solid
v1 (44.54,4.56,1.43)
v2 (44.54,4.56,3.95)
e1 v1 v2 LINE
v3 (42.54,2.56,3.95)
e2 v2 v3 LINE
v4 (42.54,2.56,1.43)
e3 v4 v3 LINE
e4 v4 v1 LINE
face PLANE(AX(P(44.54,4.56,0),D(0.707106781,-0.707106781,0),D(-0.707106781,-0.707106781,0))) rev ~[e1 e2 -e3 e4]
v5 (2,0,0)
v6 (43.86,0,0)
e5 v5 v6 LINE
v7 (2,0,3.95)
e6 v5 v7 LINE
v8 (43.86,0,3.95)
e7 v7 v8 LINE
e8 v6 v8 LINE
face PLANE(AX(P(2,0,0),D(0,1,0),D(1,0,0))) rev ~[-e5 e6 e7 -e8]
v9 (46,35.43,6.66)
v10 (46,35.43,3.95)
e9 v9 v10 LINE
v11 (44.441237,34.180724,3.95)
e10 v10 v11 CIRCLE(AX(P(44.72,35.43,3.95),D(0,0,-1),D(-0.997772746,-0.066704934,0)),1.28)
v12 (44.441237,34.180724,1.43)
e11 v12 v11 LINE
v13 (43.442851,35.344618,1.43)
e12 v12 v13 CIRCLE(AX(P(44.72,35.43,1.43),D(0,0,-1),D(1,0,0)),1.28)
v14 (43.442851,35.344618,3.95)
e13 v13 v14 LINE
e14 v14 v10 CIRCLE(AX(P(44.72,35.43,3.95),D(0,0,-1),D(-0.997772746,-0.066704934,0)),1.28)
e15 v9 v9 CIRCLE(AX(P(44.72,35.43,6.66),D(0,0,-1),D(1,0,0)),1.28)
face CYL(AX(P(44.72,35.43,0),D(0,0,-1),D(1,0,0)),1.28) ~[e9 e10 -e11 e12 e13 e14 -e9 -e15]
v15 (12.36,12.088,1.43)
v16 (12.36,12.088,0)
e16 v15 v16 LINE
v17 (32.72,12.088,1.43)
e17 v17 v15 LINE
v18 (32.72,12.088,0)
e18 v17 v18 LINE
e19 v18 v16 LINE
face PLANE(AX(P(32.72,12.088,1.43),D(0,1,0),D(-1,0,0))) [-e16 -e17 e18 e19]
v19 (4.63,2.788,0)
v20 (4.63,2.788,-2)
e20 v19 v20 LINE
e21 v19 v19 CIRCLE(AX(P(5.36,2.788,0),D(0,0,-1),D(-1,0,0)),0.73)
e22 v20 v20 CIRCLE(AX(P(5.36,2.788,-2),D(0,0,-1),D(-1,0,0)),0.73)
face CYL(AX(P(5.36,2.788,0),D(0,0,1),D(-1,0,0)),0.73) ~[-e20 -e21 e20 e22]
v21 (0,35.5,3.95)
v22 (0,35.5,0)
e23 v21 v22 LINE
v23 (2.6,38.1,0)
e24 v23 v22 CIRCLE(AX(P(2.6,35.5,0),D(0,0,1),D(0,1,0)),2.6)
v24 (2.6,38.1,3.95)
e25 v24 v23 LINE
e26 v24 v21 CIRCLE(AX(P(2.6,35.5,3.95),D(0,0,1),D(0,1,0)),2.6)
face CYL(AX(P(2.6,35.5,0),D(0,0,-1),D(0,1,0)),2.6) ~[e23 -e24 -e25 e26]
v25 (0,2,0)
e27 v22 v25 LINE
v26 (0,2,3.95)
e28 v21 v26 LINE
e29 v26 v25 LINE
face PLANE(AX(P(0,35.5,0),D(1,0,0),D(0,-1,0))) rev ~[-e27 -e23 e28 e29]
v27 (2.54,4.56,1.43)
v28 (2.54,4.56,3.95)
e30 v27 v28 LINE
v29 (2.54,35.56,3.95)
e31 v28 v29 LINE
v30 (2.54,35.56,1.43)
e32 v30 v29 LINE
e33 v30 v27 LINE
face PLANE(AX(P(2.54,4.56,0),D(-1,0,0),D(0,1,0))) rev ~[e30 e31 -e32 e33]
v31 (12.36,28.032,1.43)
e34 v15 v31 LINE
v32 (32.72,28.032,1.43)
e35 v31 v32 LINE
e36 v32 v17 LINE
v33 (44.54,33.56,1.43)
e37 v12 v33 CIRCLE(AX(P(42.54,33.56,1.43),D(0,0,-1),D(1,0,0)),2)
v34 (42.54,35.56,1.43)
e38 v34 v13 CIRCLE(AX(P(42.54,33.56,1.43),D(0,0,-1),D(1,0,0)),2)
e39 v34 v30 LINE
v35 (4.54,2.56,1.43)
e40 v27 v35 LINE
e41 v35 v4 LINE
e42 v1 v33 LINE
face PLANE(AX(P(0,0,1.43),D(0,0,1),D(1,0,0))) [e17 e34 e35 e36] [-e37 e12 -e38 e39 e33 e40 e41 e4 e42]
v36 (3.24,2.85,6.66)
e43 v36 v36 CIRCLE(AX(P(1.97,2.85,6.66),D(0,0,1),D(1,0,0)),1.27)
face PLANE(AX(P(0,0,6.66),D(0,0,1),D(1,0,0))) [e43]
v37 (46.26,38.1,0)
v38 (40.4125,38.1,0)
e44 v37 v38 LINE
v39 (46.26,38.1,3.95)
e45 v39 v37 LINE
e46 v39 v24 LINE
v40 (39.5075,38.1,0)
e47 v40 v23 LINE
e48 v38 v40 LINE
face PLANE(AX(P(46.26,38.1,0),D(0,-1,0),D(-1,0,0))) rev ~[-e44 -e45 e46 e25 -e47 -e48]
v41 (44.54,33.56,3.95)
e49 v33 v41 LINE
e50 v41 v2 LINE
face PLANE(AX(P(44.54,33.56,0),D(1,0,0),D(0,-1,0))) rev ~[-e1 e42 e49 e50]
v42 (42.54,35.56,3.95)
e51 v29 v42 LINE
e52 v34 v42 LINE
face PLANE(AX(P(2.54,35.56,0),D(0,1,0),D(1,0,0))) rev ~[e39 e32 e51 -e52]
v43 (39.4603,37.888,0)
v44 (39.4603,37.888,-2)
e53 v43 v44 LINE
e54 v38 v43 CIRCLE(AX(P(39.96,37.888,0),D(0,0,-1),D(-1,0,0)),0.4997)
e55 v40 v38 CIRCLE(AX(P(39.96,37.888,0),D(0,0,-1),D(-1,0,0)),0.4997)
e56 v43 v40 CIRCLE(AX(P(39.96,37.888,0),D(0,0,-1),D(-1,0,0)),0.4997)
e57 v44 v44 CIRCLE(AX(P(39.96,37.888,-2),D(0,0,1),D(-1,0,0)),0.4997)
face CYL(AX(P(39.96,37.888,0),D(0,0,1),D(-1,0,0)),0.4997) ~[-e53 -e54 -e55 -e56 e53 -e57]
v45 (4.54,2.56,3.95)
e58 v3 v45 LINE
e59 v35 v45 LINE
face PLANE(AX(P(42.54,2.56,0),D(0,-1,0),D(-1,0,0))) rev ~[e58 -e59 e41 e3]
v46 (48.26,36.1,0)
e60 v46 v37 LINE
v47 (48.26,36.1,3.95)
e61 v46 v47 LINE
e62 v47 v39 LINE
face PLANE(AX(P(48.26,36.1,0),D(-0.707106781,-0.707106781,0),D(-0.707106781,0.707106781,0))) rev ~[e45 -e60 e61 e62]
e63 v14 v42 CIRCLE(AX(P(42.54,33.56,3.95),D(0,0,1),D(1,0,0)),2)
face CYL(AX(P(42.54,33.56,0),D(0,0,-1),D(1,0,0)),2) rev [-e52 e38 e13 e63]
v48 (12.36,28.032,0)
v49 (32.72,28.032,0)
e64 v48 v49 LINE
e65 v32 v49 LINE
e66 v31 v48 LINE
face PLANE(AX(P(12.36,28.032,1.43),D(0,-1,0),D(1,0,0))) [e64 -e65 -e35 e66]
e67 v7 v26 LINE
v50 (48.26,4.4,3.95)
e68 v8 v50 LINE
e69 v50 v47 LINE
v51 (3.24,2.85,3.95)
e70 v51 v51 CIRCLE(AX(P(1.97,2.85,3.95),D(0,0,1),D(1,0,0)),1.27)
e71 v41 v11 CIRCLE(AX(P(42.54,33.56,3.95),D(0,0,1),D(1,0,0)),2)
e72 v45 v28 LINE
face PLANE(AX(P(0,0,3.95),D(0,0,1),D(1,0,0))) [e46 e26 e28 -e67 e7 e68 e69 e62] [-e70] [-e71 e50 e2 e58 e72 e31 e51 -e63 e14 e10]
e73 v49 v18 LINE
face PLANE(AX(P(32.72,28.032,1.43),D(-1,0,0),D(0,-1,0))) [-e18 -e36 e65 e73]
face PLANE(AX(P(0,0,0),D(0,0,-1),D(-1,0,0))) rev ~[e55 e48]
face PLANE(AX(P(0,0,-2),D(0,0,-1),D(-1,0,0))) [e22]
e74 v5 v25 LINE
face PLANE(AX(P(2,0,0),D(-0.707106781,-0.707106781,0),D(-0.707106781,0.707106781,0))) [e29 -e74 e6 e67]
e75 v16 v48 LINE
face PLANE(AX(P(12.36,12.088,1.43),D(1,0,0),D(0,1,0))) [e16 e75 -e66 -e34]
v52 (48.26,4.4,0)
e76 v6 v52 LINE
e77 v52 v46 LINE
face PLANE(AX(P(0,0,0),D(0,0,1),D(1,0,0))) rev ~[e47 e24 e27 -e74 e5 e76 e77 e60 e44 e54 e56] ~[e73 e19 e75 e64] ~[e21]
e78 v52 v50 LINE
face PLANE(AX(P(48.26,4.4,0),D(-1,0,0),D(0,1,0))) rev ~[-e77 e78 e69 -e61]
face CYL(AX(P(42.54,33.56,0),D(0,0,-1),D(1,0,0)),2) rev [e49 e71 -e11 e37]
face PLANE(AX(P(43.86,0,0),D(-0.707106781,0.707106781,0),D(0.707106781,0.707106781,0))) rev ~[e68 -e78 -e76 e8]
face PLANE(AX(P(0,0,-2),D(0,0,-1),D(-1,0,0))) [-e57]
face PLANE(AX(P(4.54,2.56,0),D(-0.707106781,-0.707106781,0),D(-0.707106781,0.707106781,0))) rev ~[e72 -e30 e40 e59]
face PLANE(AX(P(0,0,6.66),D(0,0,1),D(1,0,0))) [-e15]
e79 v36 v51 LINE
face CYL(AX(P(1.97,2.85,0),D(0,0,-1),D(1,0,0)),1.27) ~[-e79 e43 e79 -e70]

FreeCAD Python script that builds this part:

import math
import FreeCAD as App
import Part
import Sketcher

V = App.Vector

doc = App.newDocument("Part")
body = doc.addObject("PartDesign::Body", "Body")

# Sketch on XY plane
sketch1 = body.newObject("Sketcher::SketchObject", "Sketch")
sketch1.AttachmentSupport = (doc.getObject("XY_Plane"), [""])
sketch1.MapMode = "FlatFace"
sketch1.addGeometry([
    Part.LineSegment(V(0, 2, 0), V(2, 0, 0)),  # 0
    Part.LineSegment(V(2, 0, 0), V(43.9, 0, 0)),  # 1
    Part.LineSegment(V(43.9, 0, 0), V(48.3, 4.4, 0)),  # 2
    Part.LineSegment(V(48.3, 4.4, 0), V(48.3, 36.1, 0)),  # 3
    Part.LineSegment(V(48.3, 36.1, 0), V(46.3, 38.1, 0)),  # 4
    Part.LineSegment(V(46.3, 38.1, 0), V(2.6, 38.1, 0)),  # 5
    Part.ArcOfCircle(Part.Circle(V(2.6, 35.5, 0), V(0, 0, 1), 2.6), math.radians(90), math.radians(180)),  # 6
    Part.LineSegment(V(0, 35.5, 0), V(0, 2, 0)),  # 7
], False)
sketch1.addConstraint([
    Sketcher.Constraint("Coincident", 0, 2, 1, 1),
    Sketcher.Constraint("Coincident", 1, 2, 2, 1),
    Sketcher.Constraint("Coincident", 2, 2, 3, 1),
    Sketcher.Constraint("Coincident", 3, 2, 4, 1),
    Sketcher.Constraint("Coincident", 4, 2, 5, 1),
    Sketcher.Constraint("Tangent", 5, 2, 6, 1),
    Sketcher.Constraint("Tangent", 6, 2, 7, 1),
    Sketcher.Constraint("Coincident", 7, 2, 0, 1),
    Sketcher.Constraint("Horizontal", 1),
    Sketcher.Constraint("Vertical", 3),
    Sketcher.Constraint("Horizontal", 5),
    Sketcher.Constraint("Vertical", 7),
    Sketcher.Constraint("PointOnObject", 0, 2, -1),
    Sketcher.Constraint("PointOnObject", 6, 2, -2),
    Sketcher.Constraint("Perpendicular", 0, 2),
    Sketcher.Constraint("Perpendicular", 2, 4),
    Sketcher.Constraint("Equal", 0, 4),
    Sketcher.Constraint("Radius", 6, 2.6),
    Sketcher.Constraint("DistanceX", -1, 1, 0, 2, 2.0),
    Sketcher.Constraint("DistanceY", -1, 1, 7, 2, 2.0),
    Sketcher.Constraint("DistanceY", -1, 1, 2, 2, 4.4),
    Sketcher.Constraint("DistanceY", -1, 1, 4, 2, 38.1),
    Sketcher.Constraint("DistanceX", -1, 1, 2, 2, 48.26),
])
pad1 = body.newObject("PartDesign::Pad", "Pad")
pad1.Profile = sketch1
pad1.Length = 1.43

# Sketch on XY plane
sketch2 = body.newObject("Sketcher::SketchObject", "Sketch001")
sketch2.AttachmentSupport = (doc.getObject("XY_Plane"), [""])
sketch2.MapMode = "FlatFace"
sketch2.addGeometry([
    Part.LineSegment(V(0, 2, 0), V(2, 0, 0)),  # 0
    Part.LineSegment(V(2, 0, 0), V(43.9, 0, 0)),  # 1
    Part.LineSegment(V(43.9, 0, 0), V(48.3, 4.4, 0)),  # 2
    Part.LineSegment(V(48.3, 4.4, 0), V(48.3, 36.1, 0)),  # 3
    Part.LineSegment(V(48.3, 36.1, 0), V(46.3, 38.1, 0)),  # 4
    Part.LineSegment(V(46.3, 38.1, 0), V(2.6, 38.1, 0)),  # 5
    Part.ArcOfCircle(Part.Circle(V(2.6, 35.5, 0), V(0, 0, 1), 2.6), math.radians(90), math.radians(180)),  # 6
    Part.LineSegment(V(0, 35.5, 0), V(0, 2, 0)),  # 7
    Part.Circle(V(2, 2.9, 0), V(0, 0, 1), 1.3),  # 8
    Part.LineSegment(V(2.5, 4.6, 0), V(2.5, 35.6, 0)),  # 9
    Part.LineSegment(V(2.5, 35.6, 0), V(42.5, 35.6, 0)),  # 10
    Part.ArcOfCircle(Part.Circle(V(42.5, 33.6, 0), V(0, 0, 1), 2), math.radians(63), math.radians(90)),  # 11
    Part.ArcOfCircle(Part.Circle(V(44.7, 35.4, 0), V(0, 0, 1), 1.3), math.radians(-103), math.radians(184)),  # 12
    Part.ArcOfCircle(Part.Circle(V(42.5, 33.6, 0), V(0, 0, 1), 2), math.radians(0), math.radians(18.08)),  # 13
    Part.LineSegment(V(44.5, 33.6, 0), V(44.5, 4.6, 0)),  # 14
    Part.LineSegment(V(44.5, 4.6, 0), V(42.5, 2.6, 0)),  # 15
    Part.LineSegment(V(42.5, 2.6, 0), V(4.5, 2.6, 0)),  # 16
    Part.LineSegment(V(4.5, 2.6, 0), V(2.5, 4.6, 0)),  # 17
], False)
sketch2.addConstraint([
    Sketcher.Constraint("Coincident", 0, 2, 1, 1),
    Sketcher.Constraint("Coincident", 1, 2, 2, 1),
    Sketcher.Constraint("Coincident", 2, 2, 3, 1),
    Sketcher.Constraint("Coincident", 3, 2, 4, 1),
    Sketcher.Constraint("Coincident", 4, 2, 5, 1),
    Sketcher.Constraint("Tangent", 5, 2, 6, 1),
    Sketcher.Constraint("Tangent", 6, 2, 7, 1),
    Sketcher.Constraint("Coincident", 7, 2, 0, 1),
    Sketcher.Constraint("Coincident", 9, 2, 10, 1),
    Sketcher.Constraint("Tangent", 10, 2, 11, 2),
    Sketcher.Constraint("Coincident", 11, 1, 12, 2),
    Sketcher.Constraint("Coincident", 12, 1, 13, 2),
    Sketcher.Constraint("Tangent", 13, 1, 14, 1),
    Sketcher.Constraint("Coincident", 14, 2, 15, 1),
    Sketcher.Constraint("Coincident", 15, 2, 16, 1),
    Sketcher.Constraint("Coincident", 16, 2, 17, 1),
    Sketcher.Constraint("Coincident", 17, 2, 9, 1),
    Sketcher.Constraint("Horizontal", 1),
    Sketcher.Constraint("Vertical", 3),
    Sketcher.Constraint("Horizontal", 5),
    Sketcher.Constraint("Vertical", 7),
    Sketcher.Constraint("Vertical", 9),
    Sketcher.Constraint("Horizontal", 10),
    Sketcher.Constraint("Vertical", 14),
    Sketcher.Constraint("Horizontal", 16),
    Sketcher.Constraint("Coincident", 13, 3, 11, 3),
    Sketcher.Constraint("Equal", 11, 13),
    Sketcher.Constraint("PointOnObject", 0, 2, -1),
    Sketcher.Constraint("PointOnObject", 6, 2, -2),
    Sketcher.Constraint("Perpendicular", 0, 2),
    Sketcher.Constraint("Perpendicular", 2, 4),
    Sketcher.Constraint("Perpendicular", 4, 15),
    Sketcher.Constraint("Perpendicular", 15, 17),
    Sketcher.Constraint("Horizontal", 14, 2, 17, 2),
    Sketcher.Constraint("Vertical", 10, 2, 15, 2),
    Sketcher.Constraint("Equal", 0, 4),
    Sketcher.Constraint("Equal", 4, 15),
    Sketcher.Constraint("Equal", 15, 17),
    Sketcher.Constraint("Radius", 11, 2.0),
    Sketcher.Constraint("Radius", 6, 2.6),
    Sketcher.Constraint("Diameter", 8, 2.54),
    Sketcher.Constraint("Radius", 12, 1.28),
    Sketcher.Constraint("DistanceY", 16, 2, 9, 2, 33.0),
    Sketcher.Constraint("DistanceY", -1, 1, 2, 2, 4.4),
    Sketcher.Constraint("DistanceY", -1, 1, 4, 2, 38.1),
    Sketcher.Constraint("DistanceX", 10, 1, 10, 2, 40.0),
    Sketcher.Constraint("DistanceX", -1, 1, 8, 3, 1.97),
    Sketcher.Constraint("DistanceY", -1, 1, 8, 3, 2.85),
    Sketcher.Constraint("DistanceX", -1, 1, 12, 3, 44.72),
    Sketcher.Constraint("DistanceX", -1, 1, 2, 2, 48.26),
    Sketcher.Constraint("DistanceX", -1, 1, 9, 2, 2.54),
    Sketcher.Constraint("DistanceY", -1, 1, 15, 2, 2.56),
    Sketcher.Constraint("DistanceY", 12, 3, 4, 2, 2.67),
])
pad2 = body.newObject("PartDesign::Pad", "Pad001")
pad2.Profile = sketch2
pad2.Length = 3.95

# Sketch on XY plane
sketch3 = body.newObject("Sketcher::SketchObject", "Sketch002")
sketch3.AttachmentSupport = (doc.getObject("XY_Plane"), [""])
sketch3.MapMode = "FlatFace"
sketch3.addGeometry([
    Part.Circle(V(44.7, 35.4, 0), V(0, 0, 1), 1.3),
    Part.Circle(V(2, 2.9, 0), V(0, 0, 1), 1.3),
], False)
sketch3.addConstraint([
    Sketcher.Constraint("Diameter", 0, 2.56),
    Sketcher.Constraint("Diameter", 1, 2.54),
    Sketcher.Constraint("DistanceX", -1, 1, 0, 3, 44.72),
    Sketcher.Constraint("DistanceX", -1, 1, 1, 3, 1.97),
    Sketcher.Constraint("DistanceY", -1, 1, 1, 3, 2.85),
    Sketcher.Constraint("DistanceY", -1, 1, 0, 3, 35.43),
])
pad3 = body.newObject("PartDesign::Pad", "Pad002")
pad3.Profile = sketch3
pad3.Length = 4

# Sketch on XY plane
sketch4 = body.newObject("Sketcher::SketchObject", "Sketch003")
sketch4.AttachmentSupport = (doc.getObject("XY_Plane"), [""])
sketch4.MapMode = "FlatFace"
sketch4.addGeometry([
    Part.Circle(V(44.7, 35.4, 0), V(0, 0, 1), 1.3),
    Part.Circle(V(2, 2.9, 0), V(0, 0, 1), 1.3),
], False)
sketch4.addConstraint([
    Sketcher.Constraint("Diameter", 0, 2.56),
    Sketcher.Constraint("Diameter", 1, 2.54),
    Sketcher.Constraint("DistanceX", -1, 1, 0, 3, 44.72),
    Sketcher.Constraint("DistanceX", -1, 1, 1, 3, 1.97),
    Sketcher.Constraint("DistanceY", -1, 1, 1, 3, 2.85),
    Sketcher.Constraint("DistanceY", -1, 1, 0, 3, 35.43),
])
pad4 = body.newObject("PartDesign::Pad", "Pad003")
pad4.Profile = sketch4
pad4.Length = 6.66

# Sketch on XY plane
sketch5 = body.newObject("Sketcher::SketchObject", "Sketch004")
sketch5.AttachmentSupport = (doc.getObject("XY_Plane"), [""])
sketch5.MapMode = "FlatFace"
sketch5.AttachmentOffset = App.Placement(V(0, 0, 1.43), App.Rotation())
sketch5.addGeometry([
    Part.LineSegment(V(33, 28, 0), V(12, 28, 0)),
    Part.LineSegment(V(12, 28, 0), V(12, 12, 0)),
    Part.LineSegment(V(12, 12, 0), V(33, 12, 0)),
    Part.LineSegment(V(33, 12, 0), V(33, 28, 0)),
], False)
sketch5.addConstraint([
    Sketcher.Constraint("Coincident", 0, 2, 1, 1),
    Sketcher.Constraint("Coincident", 1, 2, 2, 1),
    Sketcher.Constraint("Coincident", 2, 2, 3, 1),
    Sketcher.Constraint("Coincident", 3, 2, 0, 1),
    Sketcher.Constraint("Horizontal", 0),
    Sketcher.Constraint("Vertical", 1),
    Sketcher.Constraint("Horizontal", 2),
    Sketcher.Constraint("Vertical", 3),
    Sketcher.Constraint("DistanceX", 0, 2, 0, 1, 20.36),
    Sketcher.Constraint("DistanceY", 1, 2, 1, 1, 15.944),
    Sketcher.Constraint("DistanceX", -1, 1, 0, 2, 12.36),
    Sketcher.Constraint("DistanceY", -1, 1, 0, 2, 28.032),
])
pocket1 = body.newObject("PartDesign::Pocket", "Pocket")
pocket1.Profile = sketch5
pocket1.Length = 4

# Sketch on XY plane
sketch6 = body.newObject("Sketcher::SketchObject", "Sketch005")
sketch6.AttachmentSupport = (doc.getObject("XY_Plane"), [""])
sketch6.MapMode = "FlatFace"
sketch6.addGeometry([
    Part.Circle(V(39.96, 37.89, 0), V(0, 0, 1), 0.5),
    Part.Circle(V(5.36, 2.79, 0), V(0, 0, 1), 0.73),
], False)
sketch6.addConstraint([
    Sketcher.Constraint("Diameter", 1, 1.46),
    Sketcher.Constraint("DistanceX", 1, 3, 0, 3, 34.6),
    Sketcher.Constraint("DistanceY", 1, 3, 0, 3, 35.1),
    Sketcher.Constraint("Diameter", 0, 0.9994),
    Sketcher.Constraint("DistanceX", -1, 1, 0, 3, 39.96),
    Sketcher.Constraint("DistanceY", -1, 1, 0, 3, 37.888),
])
pad5 = body.newObject("PartDesign::Pad", "Pad004")
pad5.Profile = sketch6
pad5.Length = 2
pad5.Reversed = True

doc.recompute()
